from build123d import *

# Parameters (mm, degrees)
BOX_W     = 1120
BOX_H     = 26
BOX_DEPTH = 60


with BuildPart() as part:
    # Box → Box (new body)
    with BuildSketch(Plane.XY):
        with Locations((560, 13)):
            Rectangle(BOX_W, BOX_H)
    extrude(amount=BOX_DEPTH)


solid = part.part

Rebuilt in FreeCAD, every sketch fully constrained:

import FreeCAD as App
import Part
import Sketcher

V = App.Vector
Q = App.Units.Quantity


def add_polygon(sketch, points):
    """Adds a closed chain of lines whose ends are joined by coincident constraints."""
    first, n = sketch.GeometryCount, len(points)
    for a, b in zip(points, points[1:] + points[:1]):
        sketch.addGeometry(Part.LineSegment(App.Vector(*a, 0), App.Vector(*b, 0)), False)
    for i in range(n):
        sketch.addConstraint(Sketcher.Constraint("Coincident", first + i, 2, first + (i + 1) % n, 1))

doc = App.newDocument("Part")
params = doc.addObject("Spreadsheet::Sheet", "Params")
for row, (alias, value) in enumerate([
    ("sketch1_width", "1120 mm"),
    ("sketch1_height", "26 mm"),
    ("pad1_length", "60 mm"),
], start=1):
    params.set(f"A{row}", alias)
    params.set(f"B{row}", "=" + value)
    params.setAlias(f"B{row}", alias)

body = doc.addObject("PartDesign::Body", "Body")

# Sketch on XY plane
sketch1 = doc.addObject("Sketcher::SketchObject", "Sketch")
body.addObject(sketch1)
sketch1.AttachmentSupport = (doc.XY_Plane, [""])
sketch1.MapMode = "FlatFace"
add_polygon(sketch1, [(0, 26), (0, 0), (1120, 0), (1120, 26)])  # lines 0-3
sketch1.addConstraint([
    Sketcher.Constraint("Vertical", 0),
    Sketcher.Constraint("Horizontal", 1),
    Sketcher.Constraint("Vertical", 2),
    Sketcher.Constraint("Horizontal", 3),
    Sketcher.Constraint("Coincident", 0, 2, -1, 1),
    Sketcher.Constraint("DistanceX", 1, 1, 1, 2, Q("1120 mm")),
    Sketcher.Constraint("DistanceY", 0, 2, 0, 1, Q("26 mm")),
])
sketch1.setExpression("Constraints[9]", "Params.sketch1_width")
sketch1.setExpression("Constraints[10]", "Params.sketch1_height")
pad1 = doc.addObject("PartDesign::Pad", "Pad")
body.addObject(pad1)
pad1.Profile = sketch1
pad1.setExpression("Length", "Params.pad1_length")

doc.recompute()
